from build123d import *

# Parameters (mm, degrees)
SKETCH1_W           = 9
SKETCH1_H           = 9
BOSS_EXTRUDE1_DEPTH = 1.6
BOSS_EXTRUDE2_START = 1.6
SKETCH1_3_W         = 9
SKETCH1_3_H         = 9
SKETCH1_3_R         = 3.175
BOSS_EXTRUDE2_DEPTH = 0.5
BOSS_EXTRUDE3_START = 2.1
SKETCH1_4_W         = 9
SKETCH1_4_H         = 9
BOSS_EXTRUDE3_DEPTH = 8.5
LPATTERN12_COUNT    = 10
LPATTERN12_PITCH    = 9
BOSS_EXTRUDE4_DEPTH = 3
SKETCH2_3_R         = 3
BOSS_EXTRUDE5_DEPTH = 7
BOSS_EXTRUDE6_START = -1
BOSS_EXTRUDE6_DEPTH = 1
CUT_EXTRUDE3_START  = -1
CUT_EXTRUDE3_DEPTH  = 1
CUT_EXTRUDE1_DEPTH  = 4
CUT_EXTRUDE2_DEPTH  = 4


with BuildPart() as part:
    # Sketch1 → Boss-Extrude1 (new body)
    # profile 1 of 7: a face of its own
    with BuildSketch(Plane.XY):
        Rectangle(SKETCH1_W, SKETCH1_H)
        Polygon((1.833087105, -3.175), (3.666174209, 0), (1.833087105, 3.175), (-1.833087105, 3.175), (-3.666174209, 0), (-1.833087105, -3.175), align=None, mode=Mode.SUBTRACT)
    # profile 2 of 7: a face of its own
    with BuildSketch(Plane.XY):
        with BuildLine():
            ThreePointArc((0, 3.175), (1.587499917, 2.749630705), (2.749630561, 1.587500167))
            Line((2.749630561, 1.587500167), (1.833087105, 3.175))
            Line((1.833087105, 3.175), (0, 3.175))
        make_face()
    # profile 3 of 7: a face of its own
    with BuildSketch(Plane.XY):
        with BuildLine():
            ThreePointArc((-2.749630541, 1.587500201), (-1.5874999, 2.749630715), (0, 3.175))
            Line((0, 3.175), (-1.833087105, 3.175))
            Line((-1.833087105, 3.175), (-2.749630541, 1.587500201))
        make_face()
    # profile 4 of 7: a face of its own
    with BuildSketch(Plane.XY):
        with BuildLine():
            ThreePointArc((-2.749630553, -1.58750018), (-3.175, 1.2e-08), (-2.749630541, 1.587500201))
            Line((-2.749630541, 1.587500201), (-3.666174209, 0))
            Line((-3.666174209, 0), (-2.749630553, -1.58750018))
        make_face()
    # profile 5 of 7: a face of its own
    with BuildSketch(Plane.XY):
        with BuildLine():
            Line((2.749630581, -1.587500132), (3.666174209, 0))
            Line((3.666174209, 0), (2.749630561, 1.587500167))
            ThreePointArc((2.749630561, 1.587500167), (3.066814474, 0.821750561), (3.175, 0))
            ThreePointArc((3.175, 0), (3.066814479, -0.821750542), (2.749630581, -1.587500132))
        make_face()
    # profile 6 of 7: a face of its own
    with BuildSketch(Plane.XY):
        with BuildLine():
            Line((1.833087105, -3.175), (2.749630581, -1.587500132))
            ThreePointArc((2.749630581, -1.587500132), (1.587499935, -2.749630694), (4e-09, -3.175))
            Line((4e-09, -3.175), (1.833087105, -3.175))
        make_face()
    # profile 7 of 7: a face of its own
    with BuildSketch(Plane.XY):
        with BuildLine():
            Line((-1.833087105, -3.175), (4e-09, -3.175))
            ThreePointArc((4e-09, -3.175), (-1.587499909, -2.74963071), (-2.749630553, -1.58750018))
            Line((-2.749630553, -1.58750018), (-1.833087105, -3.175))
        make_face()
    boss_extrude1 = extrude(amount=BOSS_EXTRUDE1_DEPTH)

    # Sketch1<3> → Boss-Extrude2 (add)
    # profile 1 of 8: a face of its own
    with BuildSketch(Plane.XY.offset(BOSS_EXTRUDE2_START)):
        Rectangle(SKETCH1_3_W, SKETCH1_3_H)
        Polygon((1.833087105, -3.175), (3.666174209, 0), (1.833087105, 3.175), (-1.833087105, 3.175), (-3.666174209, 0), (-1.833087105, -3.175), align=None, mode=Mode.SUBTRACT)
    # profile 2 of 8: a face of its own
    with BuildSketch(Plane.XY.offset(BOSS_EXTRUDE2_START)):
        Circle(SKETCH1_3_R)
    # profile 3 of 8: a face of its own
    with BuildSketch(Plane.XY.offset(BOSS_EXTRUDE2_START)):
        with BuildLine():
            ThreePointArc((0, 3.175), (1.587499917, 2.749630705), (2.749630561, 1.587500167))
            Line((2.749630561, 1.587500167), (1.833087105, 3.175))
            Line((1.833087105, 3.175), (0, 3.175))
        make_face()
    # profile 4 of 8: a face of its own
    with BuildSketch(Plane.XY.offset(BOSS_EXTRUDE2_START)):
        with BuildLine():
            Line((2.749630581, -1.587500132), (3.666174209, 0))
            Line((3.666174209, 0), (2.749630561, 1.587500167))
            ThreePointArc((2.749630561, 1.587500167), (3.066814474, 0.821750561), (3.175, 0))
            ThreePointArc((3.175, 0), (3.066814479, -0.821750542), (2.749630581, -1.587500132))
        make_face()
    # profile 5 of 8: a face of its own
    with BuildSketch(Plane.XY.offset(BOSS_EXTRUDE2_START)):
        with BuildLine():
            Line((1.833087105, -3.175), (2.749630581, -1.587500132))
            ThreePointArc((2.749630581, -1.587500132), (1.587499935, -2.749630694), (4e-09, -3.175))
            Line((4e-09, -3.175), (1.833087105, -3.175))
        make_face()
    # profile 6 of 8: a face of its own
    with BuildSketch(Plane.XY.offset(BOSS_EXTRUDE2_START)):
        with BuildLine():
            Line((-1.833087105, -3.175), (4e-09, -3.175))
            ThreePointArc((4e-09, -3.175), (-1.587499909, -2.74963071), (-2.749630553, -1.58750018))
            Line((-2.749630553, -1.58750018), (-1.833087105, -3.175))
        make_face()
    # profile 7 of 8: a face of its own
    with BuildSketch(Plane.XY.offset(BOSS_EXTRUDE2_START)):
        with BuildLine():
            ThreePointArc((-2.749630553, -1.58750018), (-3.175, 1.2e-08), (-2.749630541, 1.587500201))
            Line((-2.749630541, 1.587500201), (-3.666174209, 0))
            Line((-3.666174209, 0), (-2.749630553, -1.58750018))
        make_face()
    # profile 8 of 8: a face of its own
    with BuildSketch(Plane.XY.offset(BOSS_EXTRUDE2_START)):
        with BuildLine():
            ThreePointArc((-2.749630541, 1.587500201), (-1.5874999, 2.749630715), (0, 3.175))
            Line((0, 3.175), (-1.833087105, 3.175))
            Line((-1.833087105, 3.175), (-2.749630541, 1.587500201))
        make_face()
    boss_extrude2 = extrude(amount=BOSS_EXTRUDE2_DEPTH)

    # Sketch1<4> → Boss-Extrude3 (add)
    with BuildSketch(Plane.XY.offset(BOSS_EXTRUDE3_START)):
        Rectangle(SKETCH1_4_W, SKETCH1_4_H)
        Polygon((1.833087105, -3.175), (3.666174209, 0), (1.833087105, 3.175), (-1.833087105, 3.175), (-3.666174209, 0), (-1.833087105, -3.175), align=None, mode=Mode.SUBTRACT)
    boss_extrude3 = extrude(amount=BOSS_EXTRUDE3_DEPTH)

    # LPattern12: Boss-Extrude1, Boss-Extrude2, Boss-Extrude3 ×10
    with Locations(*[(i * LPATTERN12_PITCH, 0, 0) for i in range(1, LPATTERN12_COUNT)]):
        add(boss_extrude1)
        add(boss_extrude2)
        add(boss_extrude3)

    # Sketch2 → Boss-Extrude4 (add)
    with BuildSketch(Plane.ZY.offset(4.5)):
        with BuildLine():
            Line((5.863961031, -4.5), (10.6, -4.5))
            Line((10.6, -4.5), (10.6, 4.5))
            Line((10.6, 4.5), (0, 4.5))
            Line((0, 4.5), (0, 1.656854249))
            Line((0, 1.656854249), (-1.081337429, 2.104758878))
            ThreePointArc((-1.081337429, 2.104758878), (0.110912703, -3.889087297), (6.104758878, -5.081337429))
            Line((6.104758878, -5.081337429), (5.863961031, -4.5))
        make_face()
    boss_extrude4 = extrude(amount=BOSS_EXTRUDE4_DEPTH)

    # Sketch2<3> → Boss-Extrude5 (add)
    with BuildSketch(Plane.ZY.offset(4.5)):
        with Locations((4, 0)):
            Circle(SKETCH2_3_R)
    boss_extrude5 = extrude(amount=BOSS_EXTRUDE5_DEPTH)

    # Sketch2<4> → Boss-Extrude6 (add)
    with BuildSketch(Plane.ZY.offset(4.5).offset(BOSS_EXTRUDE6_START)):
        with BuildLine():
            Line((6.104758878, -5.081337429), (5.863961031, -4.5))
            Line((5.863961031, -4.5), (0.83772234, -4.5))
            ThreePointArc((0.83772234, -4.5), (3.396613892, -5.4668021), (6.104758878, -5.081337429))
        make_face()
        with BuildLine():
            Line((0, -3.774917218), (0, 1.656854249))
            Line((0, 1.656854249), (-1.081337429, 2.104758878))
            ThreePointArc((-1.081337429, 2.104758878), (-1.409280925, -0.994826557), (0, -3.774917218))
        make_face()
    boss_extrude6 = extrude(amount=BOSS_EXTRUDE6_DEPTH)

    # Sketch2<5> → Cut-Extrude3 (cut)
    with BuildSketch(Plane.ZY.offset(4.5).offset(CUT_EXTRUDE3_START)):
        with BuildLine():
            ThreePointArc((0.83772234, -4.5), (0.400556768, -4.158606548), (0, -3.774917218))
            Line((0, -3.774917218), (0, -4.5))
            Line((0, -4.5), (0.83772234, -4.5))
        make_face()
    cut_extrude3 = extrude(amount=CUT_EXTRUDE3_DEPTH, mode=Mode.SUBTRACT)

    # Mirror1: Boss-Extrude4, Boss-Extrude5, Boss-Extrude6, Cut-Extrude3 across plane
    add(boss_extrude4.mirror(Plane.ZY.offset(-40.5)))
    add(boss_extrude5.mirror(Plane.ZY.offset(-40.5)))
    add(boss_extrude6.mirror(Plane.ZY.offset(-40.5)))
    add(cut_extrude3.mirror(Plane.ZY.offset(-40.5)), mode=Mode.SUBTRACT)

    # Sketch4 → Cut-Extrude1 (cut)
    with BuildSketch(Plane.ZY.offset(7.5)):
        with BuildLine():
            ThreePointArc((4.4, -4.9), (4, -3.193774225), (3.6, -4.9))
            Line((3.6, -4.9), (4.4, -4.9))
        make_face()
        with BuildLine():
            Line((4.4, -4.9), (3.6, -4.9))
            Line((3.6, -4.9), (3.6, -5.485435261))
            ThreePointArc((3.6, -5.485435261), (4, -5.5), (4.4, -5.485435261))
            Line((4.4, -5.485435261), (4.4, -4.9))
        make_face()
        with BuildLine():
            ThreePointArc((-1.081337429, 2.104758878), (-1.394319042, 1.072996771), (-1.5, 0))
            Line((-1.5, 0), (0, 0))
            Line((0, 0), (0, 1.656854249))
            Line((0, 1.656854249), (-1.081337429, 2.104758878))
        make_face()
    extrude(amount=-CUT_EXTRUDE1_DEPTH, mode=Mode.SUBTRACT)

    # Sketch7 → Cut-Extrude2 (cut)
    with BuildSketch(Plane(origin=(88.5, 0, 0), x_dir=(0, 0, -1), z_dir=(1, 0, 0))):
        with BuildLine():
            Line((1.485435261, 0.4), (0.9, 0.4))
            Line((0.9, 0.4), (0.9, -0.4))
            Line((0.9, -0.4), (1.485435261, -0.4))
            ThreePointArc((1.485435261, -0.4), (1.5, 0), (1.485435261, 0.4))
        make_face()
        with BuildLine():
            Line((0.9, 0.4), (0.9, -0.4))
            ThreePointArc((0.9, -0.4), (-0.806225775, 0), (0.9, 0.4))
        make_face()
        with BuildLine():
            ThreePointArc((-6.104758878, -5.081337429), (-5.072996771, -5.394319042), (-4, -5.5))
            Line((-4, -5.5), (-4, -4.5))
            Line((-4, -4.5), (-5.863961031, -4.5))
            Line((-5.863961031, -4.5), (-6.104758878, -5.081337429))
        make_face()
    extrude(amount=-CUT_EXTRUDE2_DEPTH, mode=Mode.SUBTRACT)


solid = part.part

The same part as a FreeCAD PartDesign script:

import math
import FreeCAD as App
import Part
import Sketcher

V = App.Vector
Q = App.Units.Quantity

doc = App.newDocument("Part")
body = doc.addObject("PartDesign::Body", "Body")

# Sketch on XY plane
sketch1 = doc.addObject("Sketcher::SketchObject", "Sketch")
body.addObject(sketch1)
sketch1.AttachmentSupport = (doc.XY_Plane, [""])
sketch1.MapMode = "FlatFace"
sketch1.addGeometry(Part.LineSegment(V(-4.5, 4.5, 0), V(-4.5, -4.5, 0)), False)
sketch1.addGeometry(Part.LineSegment(V(-4.5, -4.5, 0), V(4.5, -4.5, 0)), False)
sketch1.addGeometry(Part.LineSegment(V(4.5, -4.5, 0), V(4.5, 4.5, 0)), False)
sketch1.addGeometry(Part.LineSegment(V(4.5, 4.5, 0), V(-4.5, 4.5, 0)), False)
sketch1.addGeometry(Part.ArcOfCircle(Part.Circle(V(0, 0, 0), V(0, 0, 1), 3.2), math.radians(-90), math.radians(-30)), False)
sketch1.addGeometry(Part.ArcOfCircle(Part.Circle(V(0, 0, 0), V(0, 0, 1), 3.2), math.radians(-150), math.radians(-90)), False)
sketch1.addGeometry(Part.ArcOfCircle(Part.Circle(V(0, 0, 0), V(0, 0, 1), 3.2), math.radians(150), math.radians(210)), False)
sketch1.addGeometry(Part.ArcOfCircle(Part.Circle(V(0, 0, 0), V(0, 0, 1), 3.2), math.radians(90), math.radians(150)), False)
sketch1.addGeometry(Part.ArcOfCircle(Part.Circle(V(0, 0, 0), V(0, 0, 1), 3.2), math.radians(30), math.radians(90)), False)
sketch1.addGeometry(Part.ArcOfCircle(Part.Circle(V(0, 0, 0), V(0, 0, 1), 3.2), math.radians(0), math.radians(30)), False)
sketch1.addGeometry(Part.ArcOfCircle(Part.Circle(V(0, 0, 0), V(0, 0, 1), 3.2), math.radians(-30), math.radians(0)), False)
sketch1.addConstraint(Sketcher.Constraint("Coincident", 0, 2, 1, 1))
sketch1.addConstraint(Sketcher.Constraint("Coincident", 1, 2, 2, 1))
sketch1.addConstraint(Sketcher.Constraint("Coincident", 2, 2, 3, 1))
sketch1.addConstraint(Sketcher.Constraint("Coincident", 3, 2, 0, 1))
sketch1.addConstraint(Sketcher.Constraint("Tangent", 4, 1, 5, 2))
sketch1.addConstraint(Sketcher.Constraint("Tangent", 5, 1, 6, 2))
sketch1.addConstraint(Sketcher.Constraint("Tangent", 6, 1, 7, 2))
sketch1.addConstraint(Sketcher.Constraint("Tangent", 7, 1, 8, 2))
sketch1.addConstraint(Sketcher.Constraint("Tangent", 8, 1, 9, 2))
sketch1.addConstraint(Sketcher.Constraint("Tangent", 9, 1, 10, 2))
sketch1.addConstraint(Sketcher.Constraint("Tangent", 10, 1, 4, 2))
sketch1.addConstraint(Sketcher.Constraint("Vertical", 0))
sketch1.addConstraint(Sketcher.Constraint("Horizontal", 1))
sketch1.addConstraint(Sketcher.Constraint("Vertical", 2))
sketch1.addConstraint(Sketcher.Constraint("Horizontal", 3))
sketch1.addConstraint(Sketcher.Constraint("Coincident", 4, 3, -1, 1))
sketch1.addConstraint(Sketcher.Constraint("Coincident", 6, 3, -1, 1))
sketch1.addConstraint(Sketcher.Constraint("Coincident", 8, 3, -1, 1))
sketch1.addConstraint(Sketcher.Constraint("Symmetric", 0, 2, 2, 2, -1, 1))
sketch1.addConstraint(Sketcher.Constraint("PointOnObject", 4, 1, -2))
sketch1.addConstraint(Sketcher.Constraint("PointOnObject", 7, 1, -2))
sketch1.addConstraint(Sketcher.Constraint("PointOnObject", 9, 1, -1))
sketch1.addConstraint(Sketcher.Constraint("Horizontal", 6, 1, 8, 1))
sketch1.addConstraint(Sketcher.Constraint("Horizontal", 5, 1, 10, 1))
sketch1.addConstraint(Sketcher.Constraint("Vertical", 5, 1, 6, 1))
sketch1.addConstraint(Sketcher.Constraint("Equal", 3, 0))
sketch1.addConstraint(Sketcher.Constraint("DistanceX", 1, 1, 1, 2, 9.0))
sketch1.addConstraint(Sketcher.Constraint("Radius", 4, 3.175))
sketch1.addConstraint(Sketcher.Constraint("DistanceY", 5, 1, -1, 1, 1.5875))
pad1 = doc.addObject("PartDesign::Pad", "Pad")
body.addObject(pad1)
pad1.Profile = sketch1
pad1.Length = 1.6

# Sketch on XY plane
sketch2 = doc.addObject("Sketcher::SketchObject", "Sketch001")
body.addObject(sketch2)
sketch2.AttachmentSupport = (doc.XY_Plane, [""])
sketch2.MapMode = "FlatFace"
sketch2.AttachmentOffset = App.Placement(V(0, 0, 1.6), App.Rotation())
sketch2.addGeometry(Part.LineSegment(V(-4, 4, 0), V(-4, -4, 0)), False)
sketch2.addGeometry(Part.LineSegment(V(-4, -4, 0), V(4, -4, 0)), False)
sketch2.addGeometry(Part.LineSegment(V(4, -4, 0), V(4, 4, 0)), False)
sketch2.addGeometry(Part.LineSegment(V(4, 4, 0), V(-4, 4, 0)), False)
sketch2.addConstraint(Sketcher.Constraint("Coincident", 0, 2, 1, 1))
sketch2.addConstraint(Sketcher.Constraint("Coincident", 1, 2, 2, 1))
sketch2.addConstraint(Sketcher.Constraint("Coincident", 2, 2, 3, 1))
sketch2.addConstraint(Sketcher.Constraint("Coincident", 3, 2, 0, 1))
sketch2.addConstraint(Sketcher.Constraint("Vertical", 0))
sketch2.addConstraint(Sketcher.Constraint("Horizontal", 1))
sketch2.addConstraint(Sketcher.Constraint("Vertical", 2))
sketch2.addConstraint(Sketcher.Constraint("Horizontal", 3))
sketch2.addConstraint(Sketcher.Constraint("Symmetric", 0, 2, 2, 2, -1, 1))
sketch2.addConstraint(Sketcher.Constraint("Equal", 3, 0))
sketch2.addConstraint(Sketcher.Constraint("DistanceX", 1, 1, 1, 2, 9.0))
pad2 = doc.addObject("PartDesign::Pad", "Pad001")
body.addObject(pad2)
pad2.Profile = sketch2
pad2.Length = 0.5

# Sketch on XY plane
sketch3 = doc.addObject("Sketcher::SketchObject", "Sketch002")
body.addObject(sketch3)
sketch3.AttachmentSupport = (doc.XY_Plane, [""])
sketch3.MapMode = "FlatFace"
sketch3.AttachmentOffset = App.Placement(V(0, 0, 2.1), App.Rotation())
sketch3.addGeometry(Part.LineSegment(V(-4.5, 4.5, 0), V(-4.5, -4.5, 0)), False)
sketch3.addGeometry(Part.LineSegment(V(-4.5, -4.5, 0), V(4.5, -4.5, 0)), False)
sketch3.addGeometry(Part.LineSegment(V(4.5, -4.5, 0), V(4.5, 4.5, 0)), False)
sketch3.addGeometry(Part.LineSegment(V(4.5, 4.5, 0), V(-4.5, 4.5, 0)), False)
sketch3.addGeometry(Part.LineSegment(V(3.7, 0, 0), V(1.8, -3.2, 0)), False)
sketch3.addGeometry(Part.LineSegment(V(1.8, -3.2, 0), V(-1.8, -3.2, 0)), False)
sketch3.addGeometry(Part.LineSegment(V(-1.8, -3.2, 0), V(-3.7, 0, 0)), False)
sketch3.addGeometry(Part.LineSegment(V(-3.7, 0, 0), V(-1.8, 3.2, 0)), False)
sketch3.addGeometry(Part.LineSegment(V(-1.8, 3.2, 0), V(1.8, 3.2, 0)), False)
sketch3.addGeometry(Part.LineSegment(V(1.8, 3.2, 0), V(3.7, 0, 0)), False)
sketch3.addConstraint(Sketcher.Constraint("Coincident", 0, 2, 1, 1))
sketch3.addConstraint(Sketcher.Constraint("Coincident", 1, 2, 2, 1))
sketch3.addConstraint(Sketcher.Constraint("Coincident", 2, 2, 3, 1))
sketch3.addConstraint(Sketcher.Constraint("Coincident", 3, 2, 0, 1))
sketch3.addConstraint(Sketcher.Constraint("Coincident", 4, 2, 5, 1))
sketch3.addConstraint(Sketcher.Constraint("Coincident", 5, 2, 6, 1))
sketch3.addConstraint(Sketcher.Constraint("Coincident", 6, 2, 7, 1))
sketch3.addConstraint(Sketcher.Constraint("Coincident", 7, 2, 8, 1))
sketch3.addConstraint(Sketcher.Constraint("Coincident", 8, 2, 9, 1))
sketch3.addConstraint(Sketcher.Constraint("Coincident", 9, 2, 4, 1))
sketch3.addConstraint(Sketcher.Constraint("Vertical", 0))
sketch3.addConstraint(Sketcher.Constraint("Horizontal", 1))
sketch3.addConstraint(Sketcher.Constraint("Vertical", 2))
sketch3.addConstraint(Sketcher.Constraint("Horizontal", 3))
sketch3.addConstraint(Sketcher.Constraint("Horizontal", 5))
sketch3.addConstraint(Sketcher.Constraint("Horizontal", 8))
sketch3.addConstraint(Sketcher.Constraint("Symmetric", 0, 2, 2, 2, -1, 1))
sketch3.addConstraint(Sketcher.Constraint("Symmetric", 4, 2, 7, 2, -1, 1))
sketch3.addConstraint(Sketcher.Constraint("Symmetric", 6, 2, 9, 2, -1, 1))
sketch3.addConstraint(Sketcher.Constraint("PointOnObject", 6, 2, -1))
sketch3.addConstraint(Sketcher.Constraint("Parallel", 6, 9))
sketch3.addConstraint(Sketcher.Constraint("Vertical", 5, 2, 7, 2))
sketch3.addConstraint(Sketcher.Constraint("Equal", 3, 0))
sketch3.addConstraint(Sketcher.Constraint("DistanceX", 1, 1, 1, 2, 9.0))
sketch3.addConstraint(Sketcher.Constraint("Angle", 4, Q("-120 deg")))
sketch3.addConstraint(Sketcher.Constraint("DistanceY", 5, 2, 7, 2, 6.35))
sketch3.addConstraint(Sketcher.Constraint("DistanceX", 5, 2, 5, 1, 3.666174))
pad3 = doc.addObject("PartDesign::Pad", "Pad002")
body.addObject(pad3)
pad3.Profile = sketch3
pad3.Length = 8.5
doc.recompute()

linearpattern = doc.addObject("PartDesign::LinearPattern", "LinearPattern")
body.addObject(linearpattern)
linearpattern.Originals = [pad1, pad2, pad3]
linearpattern.Direction = (doc.X_Axis, [""])
linearpattern.Mode = "offset"
linearpattern.Offset = 9
linearpattern.Occurrences = 10
body.Tip = linearpattern

# Sketch on YZ plane
sketch4 = doc.addObject("Sketcher::SketchObject", "Sketch003")
body.addObject(sketch4)
sketch4.AttachmentSupport = (doc.YZ_Plane, [""])
sketch4.MapMode = "FlatFace"
sketch4.AttachmentOffset = App.Placement(V(0, 0, -4.5), App.Rotation())
sketch4.addGeometry(Part.LineSegment(V(-4.5, 5.9, 0), V(-4.5, 10.6, 0)), False)
sketch4.addGeometry(Part.LineSegment(V(-4.5, 10.6, 0), V(4.5, 10.6, 0)), False)
sketch4.addGeometry(Part.LineSegment(V(4.5, 10.6, 0), V(4.5, 0, 0)), False)
sketch4.addGeometry(Part.LineSegment(V(4.5, 0, 0), V(1.7, 0, 0)), False)
sketch4.addGeometry(Part.LineSegment(V(1.7, 0, 0), V(2.1, -1.1, 0)), False)
sketch4.addGeometry(Part.ArcOfCircle(Part.Circle(V(0, 4, 0), V(0, 0, 1), 5.5), math.radians(157), math.radians(293)), False)
sketch4.addGeometry(Part.LineSegment(V(-5.1, 6.1, 0), V(-4.5, 5.9, 0)), False)
sketch4.addConstraint(Sketcher.Constraint("Coincident", 0, 2, 1, 1))
sketch4.addConstraint(Sketcher.Constraint("Coincident", 1, 2, 2, 1))
sketch4.addConstraint(Sketcher.Constraint("Coincident", 2, 2, 3, 1))
sketch4.addConstraint(Sketcher.Constraint("Coincident", 3, 2, 4, 1))
sketch4.addConstraint(Sketcher.Constraint("Coincident", 4, 2, 5, 2))
sketch4.addConstraint(Sketcher.Constraint("Coincident", 5, 1, 6, 1))
sketch4.addConstraint(Sketcher.Constraint("Coincident", 6, 2, 0, 1))
sketch4.addConstraint(Sketcher.Constraint("Vertical", 0))
sketch4.addConstraint(Sketcher.Constraint("Horizontal", 1))
sketch4.addConstraint(Sketcher.Constraint("Vertical", 2))
sketch4.addConstraint(Sketcher.Constraint("Horizontal", 3))
sketch4.addConstraint(Sketcher.Constraint("PointOnObject", 5, 3, -2))
sketch4.addConstraint(Sketcher.Constraint("PointOnObject", 2, 2, -1))
sketch4.addConstraint(Sketcher.Constraint("Radius", 5, 5.5))
sketch4.addConstraint(Sketcher.Constraint("DistanceX", 1, 1, 1, 2, 9.0))
sketch4.addConstraint(Sketcher.Constraint("DistanceY", 2, 2, 2, 1, 10.6))
sketch4.addConstraint(Sketcher.Constraint("DistanceY", -1, 1, 5, 3, 4.0))
sketch4.addConstraint(Sketcher.Constraint("Angle", 4, Q("-67.5 deg")))
sketch4.addConstraint(Sketcher.Constraint("Angle", 6, Q("-22.5 deg")))
sketch4.addConstraint(Sketcher.Constraint("DistanceX", 0, 2, -1, 1, 4.5))
sketch4.addConstraint(Sketcher.Constraint("DistanceY", 0, 1, 0, 2, 4.736039))
sketch4.addConstraint(Sketcher.Constraint("DistanceY", 4, 2, 6, 2, 6.945298))
pad4 = doc.addObject("PartDesign::Pad", "Pad003")
body.addObject(pad4)
pad4.Profile = sketch4
pad4.Length = 3
pad4.Reversed = True

# Sketch on YZ plane
sketch5 = doc.addObject("Sketcher::SketchObject", "Sketch004")
body.addObject(sketch5)
sketch5.AttachmentSupport = (doc.YZ_Plane, [""])
sketch5.MapMode = "FlatFace"
sketch5.AttachmentOffset = App.Placement(V(0, 0, -4.5), App.Rotation())
sketch5.addGeometry(Part.Circle(V(0, 4, 0), V(0, 0, 1), 3), False)
sketch5.addConstraint(Sketcher.Constraint("PointOnObject", 0, 3, -2))
sketch5.addConstraint(Sketcher.Constraint("Diameter", 0, 6.0))
sketch5.addConstraint(Sketcher.Constraint("DistanceY", -1, 1, 0, 3, 4.0))
pad5 = doc.addObject("PartDesign::Pad", "Pad004")
body.addObject(pad5)
pad5.Profile = sketch5
pad5.Length = 7
pad5.Reversed = True

# Sketch on YZ plane
sketch6 = doc.addObject("Sketcher::SketchObject", "Sketch005")
body.addObject(sketch6)
sketch6.AttachmentSupport = (doc.YZ_Plane, [""])
sketch6.MapMode = "FlatFace"
sketch6.AttachmentOffset = App.Placement(V(0, 0, -3.5), App.Rotation())
sketch6.addGeometry(Part.LineSegment(V(-5.1, 6.1, 0), V(-4.5, 5.9, 0)), False)
sketch6.addGeometry(Part.LineSegment(V(-4.5, 5.9, 0), V(-4.5, 0.8, 0)), False)
sketch6.addGeometry(Part.ArcOfCircle(Part.Circle(V(0, 4, 0), V(0, 0, 1), 5.5), math.radians(158), math.radians(215)), False)
sketch6.addGeometry(Part.LineSegment(V(-3.8, 0, 0), V(1.7, 0, 0)), False)
sketch6.addGeometry(Part.LineSegment(V(1.7, 0, 0), V(2.1, -1.1, 0)), False)
sketch6.addGeometry(Part.ArcOfCircle(Part.Circle(V(0, 4, 0), V(0, 0, 1), 5.5), math.radians(-133), math.radians(-67)), False)
sketch6.addConstraint(Sketcher.Constraint("Coincident", 0, 2, 1, 1))
sketch6.addConstraint(Sketcher.Constraint("Coincident", 1, 2, 2, 2))
sketch6.addConstraint(Sketcher.Constraint("Coincident", 2, 1, 0, 1))
sketch6.addConstraint(Sketcher.Constraint("Coincident", 3, 2, 4, 1))
sketch6.addConstraint(Sketcher.Constraint("Coincident", 4, 2, 5, 2))
sketch6.addConstraint(Sketcher.Constraint("Coincident", 5, 1, 3, 1))
sketch6.addConstraint(Sketcher.Constraint("Vertical", 1))
sketch6.addConstraint(Sketcher.Constraint("Horizontal", 3))
sketch6.addConstraint(Sketcher.Constraint("Coincident", 5, 3, 2, 3))
sketch6.addConstraint(Sketcher.Constraint("Equal", 2, 5))
sketch6.addConstraint(Sketcher.Constraint("PointOnObject", 2, 3, -2))
sketch6.addConstraint(Sketcher.Constraint("PointOnObject", 3, 2, -1))
sketch6.addConstraint(Sketcher.Constraint("Radius", 2, 5.5))
sketch6.addConstraint(Sketcher.Constraint("DistanceY", -1, 1, 2, 3, 4.0))
sketch6.addConstraint(Sketcher.Constraint("Angle", 0, Q("-22.5 deg")))
sketch6.addConstraint(Sketcher.Constraint("Angle", 4, Q("-67.5 deg")))
sketch6.addConstraint(Sketcher.Constraint("DistanceX", 0, 2, -1, 1, 4.5))
sketch6.addConstraint(Sketcher.Constraint("DistanceX", 3, 1, 3, 2, 5.431771))
sketch6.addConstraint(Sketcher.Constraint("DistanceY", 1, 2, 1, 1, 5.026239))
pad6 = doc.addObject("PartDesign::Pad", "Pad005")
body.addObject(pad6)
pad6.Profile = sketch6
pad6.Length = 1
pad6.Reversed = True

# Sketch on YZ plane
sketch7 = doc.addObject("Sketcher::SketchObject", "Sketch006")
body.addObject(sketch7)
sketch7.AttachmentSupport = (doc.YZ_Plane, [""])
sketch7.MapMode = "FlatFace"
sketch7.AttachmentOffset = App.Placement(V(0, 0, -3.5), App.Rotation())
sketch7.addGeometry(Part.ArcOfCircle(Part.Circle(V(0, 4, 0), V(0, 0, 1), 5.5), math.radians(-144.9), math.radians(-133.34)), False)
sketch7.addGeometry(Part.LineSegment(V(-3.8, 0, 0), V(-4.5, 0, 0)), False)
sketch7.addGeometry(Part.LineSegment(V(-4.5, 0, 0), V(-4.5, 0.8, 0)), False)
sketch7.addConstraint(Sketcher.Constraint("Coincident", 0, 2, 1, 1))
sketch7.addConstraint(Sketcher.Constraint("Coincident", 1, 2, 2, 1))
sketch7.addConstraint(Sketcher.Constraint("Coincident", 2, 2, 0, 1))
sketch7.addConstraint(Sketcher.Constraint("Horizontal", 1))
sketch7.addConstraint(Sketcher.Constraint("Vertical", 2))
sketch7.addConstraint(Sketcher.Constraint("PointOnObject", 0, 3, -2))
sketch7.addConstraint(Sketcher.Constraint("PointOnObject", 0, 2, -1))
sketch7.addConstraint(Sketcher.Constraint("Radius", 0, 5.5))
sketch7.addConstraint(Sketcher.Constraint("DistanceY", -1, 1, 0, 3, 4.0))
sketch7.addConstraint(Sketcher.Constraint("DistanceX", 1, 2, -1, 1, 4.5))
pocket1 = doc.addObject("PartDesign::Pocket", "Pocket")
body.addObject(pocket1)
pocket1.Profile = sketch7
pocket1.Length = 1
doc.recompute()

datumplane = doc.addObject("PartDesign::Plane", "DatumPlane")
body.addObject(datumplane)
datumplane.AttachmentSupport = (doc.YZ_Plane, [""])
datumplane.MapMode = "FlatFace"
datumplane.AttachmentOffset = App.Placement(V(0, 0, 40.5), App.Rotation())
mirrored = doc.addObject("PartDesign::Mirrored", "Mirrored")
body.addObject(mirrored)
mirrored.Originals = [pad4, pad5, pad6, pocket1]
mirrored.MirrorPlane = (datumplane, [""])
body.Tip = mirrored

# Sketch on YZ plane
sketch8 = doc.addObject("Sketcher::SketchObject", "Sketch007")
body.addObject(sketch8)
sketch8.AttachmentSupport = (doc.YZ_Plane, [""])
sketch8.MapMode = "FlatFace"
sketch8.AttachmentOffset = App.Placement(V(0, 0, -7.5), App.Rotation())
sketch8.addGeometry(Part.ArcOfCircle(Part.Circle(V(-4.1, 4, 0), V(0, 0, 1), 0.9), math.radians(-154), math.radians(154)), False)
sketch8.addGeometry(Part.LineSegment(V(-4.9, 3.6, 0), V(-5.5, 3.6, 0)), False)
sketch8.addGeometry(Part.ArcOfCircle(Part.Circle(V(0, 4, 0), V(0, 0, 1), 5.5), math.radians(175.83), math.radians(184.17)), False)
sketch8.addGeometry(Part.LineSegment(V(-5.5, 4.4, 0), V(-4.9, 4.4, 0)), False)
sketch8.addGeometry(Part.ArcOfCircle(Part.Circle(V(0, 4, 0), V(0, 0, 1), 5.5), math.radians(-90), math.radians(-68)), False)
sketch8.addGeometry(Part.LineSegment(V(0, -1.5, 0), V(0, 0, 0)), False)
sketch8.addGeometry(Part.LineSegment(V(0, 0, 0), V(1.7, 0, 0)), False)
sketch8.addGeometry(Part.LineSegment(V(1.7, 0, 0), V(2.1, -1.1, 0)), False)
sketch8.addConstraint(Sketcher.Constraint("Coincident", 0, 1, 1, 1))
sketch8.addConstraint(Sketcher.Constraint("Coincident", 1, 2, 2, 2))
sketch8.addConstraint(Sketcher.Constraint("Coincident", 2, 1, 3, 1))
sketch8.addConstraint(Sketcher.Constraint("Coincident", 3, 2, 0, 2))
sketch8.addConstraint(Sketcher.Constraint("Coincident", 4, 1, 5, 1))
sketch8.addConstraint(Sketcher.Constraint("Coincident", 5, 2, 6, 1))
sketch8.addConstraint(Sketcher.Constraint("Coincident", 6, 2, 7, 1))
sketch8.addConstraint(Sketcher.Constraint("Coincident", 7, 2, 4, 2))
sketch8.addConstraint(Sketcher.Constraint("Horizontal", 1))
sketch8.addConstraint(Sketcher.Constraint("Horizontal", 3))
sketch8.addConstraint(Sketcher.Constraint("Vertical", 5))
sketch8.addConstraint(Sketcher.Constraint("Horizontal", 6))
sketch8.addConstraint(Sketcher.Constraint("Coincident", 5, 2, -1, 1))
sketch8.addConstraint(Sketcher.Constraint("Coincident", 4, 3, 2, 3))
sketch8.addConstraint(Sketcher.Constraint("Equal", 2, 4))
sketch8.addConstraint(Sketcher.Constraint("PointOnObject", 2, 3, -2))
sketch8.addConstraint(Sketcher.Constraint("Horizontal", 0, 3, 2, 3))
sketch8.addConstraint(Sketcher.Constraint("Vertical", 1, 2, 2, 1))
sketch8.addConstraint(Sketcher.Constraint("Radius", 0, 0.9))
sketch8.addConstraint(Sketcher.Constraint("Radius", 2, 5.5))
sketch8.addConstraint(Sketcher.Constraint("DistanceY", 5, 1, 5, 2, 1.5))
sketch8.addConstraint(Sketcher.Constraint("Angle", 7, Q("-67.5 deg")))
sketch8.addConstraint(Sketcher.Constraint("DistanceX", 0, 1, -1, 1, 4.9))
sketch8.addConstraint(Sketcher.Constraint("DistanceY", -1, 1, 0, 1, 3.6))
sketch8.addConstraint(Sketcher.Constraint("Distance", 7, 1.170431))
pocket2 = doc.addObject("PartDesign::Pocket", "Pocket001")
body.addObject(pocket2)
pocket2.Profile = sketch8
pocket2.Length = 4
pocket2.Reversed = True

# Sketch on YZ plane
sketch9 = doc.addObject("Sketcher::SketchObject", "Sketch008")
body.addObject(sketch9)
sketch9.AttachmentSupport = (doc.YZ_Plane, [""])
sketch9.MapMode = "FlatFace"
sketch9.AttachmentOffset = App.Placement(V(0, 0, 88.5), App.Rotation())
sketch9.addGeometry(Part.LineSegment(V(0.4, -1.5, 0), V(0.4, -0.9, 0)), False)
sketch9.addGeometry(Part.ArcOfCircle(Part.Circle(V(0, -0.1, 0), V(0, 0, 1), 0.9), math.radians(-64), math.radians(244)), False)
sketch9.addGeometry(Part.LineSegment(V(-0.4, -0.9, 0), V(-0.4, -1.5, 0)), False)
sketch9.addGeometry(Part.ArcOfCircle(Part.Circle(V(0, 4, 0), V(0, 0, 1), 5.5), math.radians(-94.17), math.radians(-85.83)), False)
sketch9.addGeometry(Part.ArcOfCircle(Part.Circle(V(0, 4, 0), V(0, 0, 1), 5.5), math.radians(158), math.radians(180)), False)
sketch9.addGeometry(Part.LineSegment(V(-5.5, 4, 0), V(-4.5, 4, 0)), False)
sketch9.addGeometry(Part.LineSegment(V(-4.5, 4, 0), V(-4.5, 5.9, 0)), False)
sketch9.addGeometry(Part.LineSegment(V(-4.5, 5.9, 0), V(-5.1, 6.1, 0)), False)
sketch9.addConstraint(Sketcher.Constraint("Coincident", 0, 2, 1, 1))
sketch9.addConstraint(Sketcher.Constraint("Coincident", 1, 2, 2, 1))
sketch9.addConstraint(Sketcher.Constraint("Coincident", 2, 2, 3, 1))
sketch9.addConstraint(Sketcher.Constraint("Coincident", 3, 2, 0, 1))
sketch9.addConstraint(Sketcher.Constraint("Coincident", 4, 2, 5, 1))
sketch9.addConstraint(Sketcher.Constraint("Coincident", 5, 2, 6, 1))
sketch9.addConstraint(Sketcher.Constraint("Coincident", 6, 2, 7, 1))
sketch9.addConstraint(Sketcher.Constraint("Coincident", 7, 2, 4, 1))
sketch9.addConstraint(Sketcher.Constraint("Vertical", 0))
sketch9.addConstraint(Sketcher.Constraint("Vertical", 2))
sketch9.addConstraint(Sketcher.Constraint("Horizontal", 5))
sketch9.addConstraint(Sketcher.Constraint("Vertical", 6))
sketch9.addConstraint(Sketcher.Constraint("Coincident", 4, 3, 3, 3))
sketch9.addConstraint(Sketcher.Constraint("Equal", 3, 4))
sketch9.addConstraint(Sketcher.Constraint("Symmetric", 0, 2, 1, 2, -2))
sketch9.addConstraint(Sketcher.Constraint("PointOnObject", 3, 3, -2))
sketch9.addConstraint(Sketcher.Constraint("Horizontal", 3, 3, 4, 2))
sketch9.addConstraint(Sketcher.Constraint("Radius", 1, 0.9))
sketch9.addConstraint(Sketcher.Constraint("Radius", 3, 5.5))
sketch9.addConstraint(Sketcher.Constraint("DistanceX", 5, 1, 5, 2, 1.0))
sketch9.addConstraint(Sketcher.Constraint("DistanceY", -1, 1, 3, 3, 4.0))
sketch9.addConstraint(Sketcher.Constraint("Angle", 7, Q("157.5 deg")))
sketch9.addConstraint(Sketcher.Constraint("DistanceX", -1, 1, 0, 2, 0.4))
sketch9.addConstraint(Sketcher.Constraint("DistanceY", 0, 2, -1, 1, 0.9))
sketch9.addConstraint(Sketcher.Constraint("DistanceY", 6, 1, 6, 2, 1.863961))
pocket3 = doc.addObject("PartDesign::Pocket", "Pocket002")
body.addObject(pocket3)
pocket3.Profile = sketch9
pocket3.Length = 4

doc.recompute()
